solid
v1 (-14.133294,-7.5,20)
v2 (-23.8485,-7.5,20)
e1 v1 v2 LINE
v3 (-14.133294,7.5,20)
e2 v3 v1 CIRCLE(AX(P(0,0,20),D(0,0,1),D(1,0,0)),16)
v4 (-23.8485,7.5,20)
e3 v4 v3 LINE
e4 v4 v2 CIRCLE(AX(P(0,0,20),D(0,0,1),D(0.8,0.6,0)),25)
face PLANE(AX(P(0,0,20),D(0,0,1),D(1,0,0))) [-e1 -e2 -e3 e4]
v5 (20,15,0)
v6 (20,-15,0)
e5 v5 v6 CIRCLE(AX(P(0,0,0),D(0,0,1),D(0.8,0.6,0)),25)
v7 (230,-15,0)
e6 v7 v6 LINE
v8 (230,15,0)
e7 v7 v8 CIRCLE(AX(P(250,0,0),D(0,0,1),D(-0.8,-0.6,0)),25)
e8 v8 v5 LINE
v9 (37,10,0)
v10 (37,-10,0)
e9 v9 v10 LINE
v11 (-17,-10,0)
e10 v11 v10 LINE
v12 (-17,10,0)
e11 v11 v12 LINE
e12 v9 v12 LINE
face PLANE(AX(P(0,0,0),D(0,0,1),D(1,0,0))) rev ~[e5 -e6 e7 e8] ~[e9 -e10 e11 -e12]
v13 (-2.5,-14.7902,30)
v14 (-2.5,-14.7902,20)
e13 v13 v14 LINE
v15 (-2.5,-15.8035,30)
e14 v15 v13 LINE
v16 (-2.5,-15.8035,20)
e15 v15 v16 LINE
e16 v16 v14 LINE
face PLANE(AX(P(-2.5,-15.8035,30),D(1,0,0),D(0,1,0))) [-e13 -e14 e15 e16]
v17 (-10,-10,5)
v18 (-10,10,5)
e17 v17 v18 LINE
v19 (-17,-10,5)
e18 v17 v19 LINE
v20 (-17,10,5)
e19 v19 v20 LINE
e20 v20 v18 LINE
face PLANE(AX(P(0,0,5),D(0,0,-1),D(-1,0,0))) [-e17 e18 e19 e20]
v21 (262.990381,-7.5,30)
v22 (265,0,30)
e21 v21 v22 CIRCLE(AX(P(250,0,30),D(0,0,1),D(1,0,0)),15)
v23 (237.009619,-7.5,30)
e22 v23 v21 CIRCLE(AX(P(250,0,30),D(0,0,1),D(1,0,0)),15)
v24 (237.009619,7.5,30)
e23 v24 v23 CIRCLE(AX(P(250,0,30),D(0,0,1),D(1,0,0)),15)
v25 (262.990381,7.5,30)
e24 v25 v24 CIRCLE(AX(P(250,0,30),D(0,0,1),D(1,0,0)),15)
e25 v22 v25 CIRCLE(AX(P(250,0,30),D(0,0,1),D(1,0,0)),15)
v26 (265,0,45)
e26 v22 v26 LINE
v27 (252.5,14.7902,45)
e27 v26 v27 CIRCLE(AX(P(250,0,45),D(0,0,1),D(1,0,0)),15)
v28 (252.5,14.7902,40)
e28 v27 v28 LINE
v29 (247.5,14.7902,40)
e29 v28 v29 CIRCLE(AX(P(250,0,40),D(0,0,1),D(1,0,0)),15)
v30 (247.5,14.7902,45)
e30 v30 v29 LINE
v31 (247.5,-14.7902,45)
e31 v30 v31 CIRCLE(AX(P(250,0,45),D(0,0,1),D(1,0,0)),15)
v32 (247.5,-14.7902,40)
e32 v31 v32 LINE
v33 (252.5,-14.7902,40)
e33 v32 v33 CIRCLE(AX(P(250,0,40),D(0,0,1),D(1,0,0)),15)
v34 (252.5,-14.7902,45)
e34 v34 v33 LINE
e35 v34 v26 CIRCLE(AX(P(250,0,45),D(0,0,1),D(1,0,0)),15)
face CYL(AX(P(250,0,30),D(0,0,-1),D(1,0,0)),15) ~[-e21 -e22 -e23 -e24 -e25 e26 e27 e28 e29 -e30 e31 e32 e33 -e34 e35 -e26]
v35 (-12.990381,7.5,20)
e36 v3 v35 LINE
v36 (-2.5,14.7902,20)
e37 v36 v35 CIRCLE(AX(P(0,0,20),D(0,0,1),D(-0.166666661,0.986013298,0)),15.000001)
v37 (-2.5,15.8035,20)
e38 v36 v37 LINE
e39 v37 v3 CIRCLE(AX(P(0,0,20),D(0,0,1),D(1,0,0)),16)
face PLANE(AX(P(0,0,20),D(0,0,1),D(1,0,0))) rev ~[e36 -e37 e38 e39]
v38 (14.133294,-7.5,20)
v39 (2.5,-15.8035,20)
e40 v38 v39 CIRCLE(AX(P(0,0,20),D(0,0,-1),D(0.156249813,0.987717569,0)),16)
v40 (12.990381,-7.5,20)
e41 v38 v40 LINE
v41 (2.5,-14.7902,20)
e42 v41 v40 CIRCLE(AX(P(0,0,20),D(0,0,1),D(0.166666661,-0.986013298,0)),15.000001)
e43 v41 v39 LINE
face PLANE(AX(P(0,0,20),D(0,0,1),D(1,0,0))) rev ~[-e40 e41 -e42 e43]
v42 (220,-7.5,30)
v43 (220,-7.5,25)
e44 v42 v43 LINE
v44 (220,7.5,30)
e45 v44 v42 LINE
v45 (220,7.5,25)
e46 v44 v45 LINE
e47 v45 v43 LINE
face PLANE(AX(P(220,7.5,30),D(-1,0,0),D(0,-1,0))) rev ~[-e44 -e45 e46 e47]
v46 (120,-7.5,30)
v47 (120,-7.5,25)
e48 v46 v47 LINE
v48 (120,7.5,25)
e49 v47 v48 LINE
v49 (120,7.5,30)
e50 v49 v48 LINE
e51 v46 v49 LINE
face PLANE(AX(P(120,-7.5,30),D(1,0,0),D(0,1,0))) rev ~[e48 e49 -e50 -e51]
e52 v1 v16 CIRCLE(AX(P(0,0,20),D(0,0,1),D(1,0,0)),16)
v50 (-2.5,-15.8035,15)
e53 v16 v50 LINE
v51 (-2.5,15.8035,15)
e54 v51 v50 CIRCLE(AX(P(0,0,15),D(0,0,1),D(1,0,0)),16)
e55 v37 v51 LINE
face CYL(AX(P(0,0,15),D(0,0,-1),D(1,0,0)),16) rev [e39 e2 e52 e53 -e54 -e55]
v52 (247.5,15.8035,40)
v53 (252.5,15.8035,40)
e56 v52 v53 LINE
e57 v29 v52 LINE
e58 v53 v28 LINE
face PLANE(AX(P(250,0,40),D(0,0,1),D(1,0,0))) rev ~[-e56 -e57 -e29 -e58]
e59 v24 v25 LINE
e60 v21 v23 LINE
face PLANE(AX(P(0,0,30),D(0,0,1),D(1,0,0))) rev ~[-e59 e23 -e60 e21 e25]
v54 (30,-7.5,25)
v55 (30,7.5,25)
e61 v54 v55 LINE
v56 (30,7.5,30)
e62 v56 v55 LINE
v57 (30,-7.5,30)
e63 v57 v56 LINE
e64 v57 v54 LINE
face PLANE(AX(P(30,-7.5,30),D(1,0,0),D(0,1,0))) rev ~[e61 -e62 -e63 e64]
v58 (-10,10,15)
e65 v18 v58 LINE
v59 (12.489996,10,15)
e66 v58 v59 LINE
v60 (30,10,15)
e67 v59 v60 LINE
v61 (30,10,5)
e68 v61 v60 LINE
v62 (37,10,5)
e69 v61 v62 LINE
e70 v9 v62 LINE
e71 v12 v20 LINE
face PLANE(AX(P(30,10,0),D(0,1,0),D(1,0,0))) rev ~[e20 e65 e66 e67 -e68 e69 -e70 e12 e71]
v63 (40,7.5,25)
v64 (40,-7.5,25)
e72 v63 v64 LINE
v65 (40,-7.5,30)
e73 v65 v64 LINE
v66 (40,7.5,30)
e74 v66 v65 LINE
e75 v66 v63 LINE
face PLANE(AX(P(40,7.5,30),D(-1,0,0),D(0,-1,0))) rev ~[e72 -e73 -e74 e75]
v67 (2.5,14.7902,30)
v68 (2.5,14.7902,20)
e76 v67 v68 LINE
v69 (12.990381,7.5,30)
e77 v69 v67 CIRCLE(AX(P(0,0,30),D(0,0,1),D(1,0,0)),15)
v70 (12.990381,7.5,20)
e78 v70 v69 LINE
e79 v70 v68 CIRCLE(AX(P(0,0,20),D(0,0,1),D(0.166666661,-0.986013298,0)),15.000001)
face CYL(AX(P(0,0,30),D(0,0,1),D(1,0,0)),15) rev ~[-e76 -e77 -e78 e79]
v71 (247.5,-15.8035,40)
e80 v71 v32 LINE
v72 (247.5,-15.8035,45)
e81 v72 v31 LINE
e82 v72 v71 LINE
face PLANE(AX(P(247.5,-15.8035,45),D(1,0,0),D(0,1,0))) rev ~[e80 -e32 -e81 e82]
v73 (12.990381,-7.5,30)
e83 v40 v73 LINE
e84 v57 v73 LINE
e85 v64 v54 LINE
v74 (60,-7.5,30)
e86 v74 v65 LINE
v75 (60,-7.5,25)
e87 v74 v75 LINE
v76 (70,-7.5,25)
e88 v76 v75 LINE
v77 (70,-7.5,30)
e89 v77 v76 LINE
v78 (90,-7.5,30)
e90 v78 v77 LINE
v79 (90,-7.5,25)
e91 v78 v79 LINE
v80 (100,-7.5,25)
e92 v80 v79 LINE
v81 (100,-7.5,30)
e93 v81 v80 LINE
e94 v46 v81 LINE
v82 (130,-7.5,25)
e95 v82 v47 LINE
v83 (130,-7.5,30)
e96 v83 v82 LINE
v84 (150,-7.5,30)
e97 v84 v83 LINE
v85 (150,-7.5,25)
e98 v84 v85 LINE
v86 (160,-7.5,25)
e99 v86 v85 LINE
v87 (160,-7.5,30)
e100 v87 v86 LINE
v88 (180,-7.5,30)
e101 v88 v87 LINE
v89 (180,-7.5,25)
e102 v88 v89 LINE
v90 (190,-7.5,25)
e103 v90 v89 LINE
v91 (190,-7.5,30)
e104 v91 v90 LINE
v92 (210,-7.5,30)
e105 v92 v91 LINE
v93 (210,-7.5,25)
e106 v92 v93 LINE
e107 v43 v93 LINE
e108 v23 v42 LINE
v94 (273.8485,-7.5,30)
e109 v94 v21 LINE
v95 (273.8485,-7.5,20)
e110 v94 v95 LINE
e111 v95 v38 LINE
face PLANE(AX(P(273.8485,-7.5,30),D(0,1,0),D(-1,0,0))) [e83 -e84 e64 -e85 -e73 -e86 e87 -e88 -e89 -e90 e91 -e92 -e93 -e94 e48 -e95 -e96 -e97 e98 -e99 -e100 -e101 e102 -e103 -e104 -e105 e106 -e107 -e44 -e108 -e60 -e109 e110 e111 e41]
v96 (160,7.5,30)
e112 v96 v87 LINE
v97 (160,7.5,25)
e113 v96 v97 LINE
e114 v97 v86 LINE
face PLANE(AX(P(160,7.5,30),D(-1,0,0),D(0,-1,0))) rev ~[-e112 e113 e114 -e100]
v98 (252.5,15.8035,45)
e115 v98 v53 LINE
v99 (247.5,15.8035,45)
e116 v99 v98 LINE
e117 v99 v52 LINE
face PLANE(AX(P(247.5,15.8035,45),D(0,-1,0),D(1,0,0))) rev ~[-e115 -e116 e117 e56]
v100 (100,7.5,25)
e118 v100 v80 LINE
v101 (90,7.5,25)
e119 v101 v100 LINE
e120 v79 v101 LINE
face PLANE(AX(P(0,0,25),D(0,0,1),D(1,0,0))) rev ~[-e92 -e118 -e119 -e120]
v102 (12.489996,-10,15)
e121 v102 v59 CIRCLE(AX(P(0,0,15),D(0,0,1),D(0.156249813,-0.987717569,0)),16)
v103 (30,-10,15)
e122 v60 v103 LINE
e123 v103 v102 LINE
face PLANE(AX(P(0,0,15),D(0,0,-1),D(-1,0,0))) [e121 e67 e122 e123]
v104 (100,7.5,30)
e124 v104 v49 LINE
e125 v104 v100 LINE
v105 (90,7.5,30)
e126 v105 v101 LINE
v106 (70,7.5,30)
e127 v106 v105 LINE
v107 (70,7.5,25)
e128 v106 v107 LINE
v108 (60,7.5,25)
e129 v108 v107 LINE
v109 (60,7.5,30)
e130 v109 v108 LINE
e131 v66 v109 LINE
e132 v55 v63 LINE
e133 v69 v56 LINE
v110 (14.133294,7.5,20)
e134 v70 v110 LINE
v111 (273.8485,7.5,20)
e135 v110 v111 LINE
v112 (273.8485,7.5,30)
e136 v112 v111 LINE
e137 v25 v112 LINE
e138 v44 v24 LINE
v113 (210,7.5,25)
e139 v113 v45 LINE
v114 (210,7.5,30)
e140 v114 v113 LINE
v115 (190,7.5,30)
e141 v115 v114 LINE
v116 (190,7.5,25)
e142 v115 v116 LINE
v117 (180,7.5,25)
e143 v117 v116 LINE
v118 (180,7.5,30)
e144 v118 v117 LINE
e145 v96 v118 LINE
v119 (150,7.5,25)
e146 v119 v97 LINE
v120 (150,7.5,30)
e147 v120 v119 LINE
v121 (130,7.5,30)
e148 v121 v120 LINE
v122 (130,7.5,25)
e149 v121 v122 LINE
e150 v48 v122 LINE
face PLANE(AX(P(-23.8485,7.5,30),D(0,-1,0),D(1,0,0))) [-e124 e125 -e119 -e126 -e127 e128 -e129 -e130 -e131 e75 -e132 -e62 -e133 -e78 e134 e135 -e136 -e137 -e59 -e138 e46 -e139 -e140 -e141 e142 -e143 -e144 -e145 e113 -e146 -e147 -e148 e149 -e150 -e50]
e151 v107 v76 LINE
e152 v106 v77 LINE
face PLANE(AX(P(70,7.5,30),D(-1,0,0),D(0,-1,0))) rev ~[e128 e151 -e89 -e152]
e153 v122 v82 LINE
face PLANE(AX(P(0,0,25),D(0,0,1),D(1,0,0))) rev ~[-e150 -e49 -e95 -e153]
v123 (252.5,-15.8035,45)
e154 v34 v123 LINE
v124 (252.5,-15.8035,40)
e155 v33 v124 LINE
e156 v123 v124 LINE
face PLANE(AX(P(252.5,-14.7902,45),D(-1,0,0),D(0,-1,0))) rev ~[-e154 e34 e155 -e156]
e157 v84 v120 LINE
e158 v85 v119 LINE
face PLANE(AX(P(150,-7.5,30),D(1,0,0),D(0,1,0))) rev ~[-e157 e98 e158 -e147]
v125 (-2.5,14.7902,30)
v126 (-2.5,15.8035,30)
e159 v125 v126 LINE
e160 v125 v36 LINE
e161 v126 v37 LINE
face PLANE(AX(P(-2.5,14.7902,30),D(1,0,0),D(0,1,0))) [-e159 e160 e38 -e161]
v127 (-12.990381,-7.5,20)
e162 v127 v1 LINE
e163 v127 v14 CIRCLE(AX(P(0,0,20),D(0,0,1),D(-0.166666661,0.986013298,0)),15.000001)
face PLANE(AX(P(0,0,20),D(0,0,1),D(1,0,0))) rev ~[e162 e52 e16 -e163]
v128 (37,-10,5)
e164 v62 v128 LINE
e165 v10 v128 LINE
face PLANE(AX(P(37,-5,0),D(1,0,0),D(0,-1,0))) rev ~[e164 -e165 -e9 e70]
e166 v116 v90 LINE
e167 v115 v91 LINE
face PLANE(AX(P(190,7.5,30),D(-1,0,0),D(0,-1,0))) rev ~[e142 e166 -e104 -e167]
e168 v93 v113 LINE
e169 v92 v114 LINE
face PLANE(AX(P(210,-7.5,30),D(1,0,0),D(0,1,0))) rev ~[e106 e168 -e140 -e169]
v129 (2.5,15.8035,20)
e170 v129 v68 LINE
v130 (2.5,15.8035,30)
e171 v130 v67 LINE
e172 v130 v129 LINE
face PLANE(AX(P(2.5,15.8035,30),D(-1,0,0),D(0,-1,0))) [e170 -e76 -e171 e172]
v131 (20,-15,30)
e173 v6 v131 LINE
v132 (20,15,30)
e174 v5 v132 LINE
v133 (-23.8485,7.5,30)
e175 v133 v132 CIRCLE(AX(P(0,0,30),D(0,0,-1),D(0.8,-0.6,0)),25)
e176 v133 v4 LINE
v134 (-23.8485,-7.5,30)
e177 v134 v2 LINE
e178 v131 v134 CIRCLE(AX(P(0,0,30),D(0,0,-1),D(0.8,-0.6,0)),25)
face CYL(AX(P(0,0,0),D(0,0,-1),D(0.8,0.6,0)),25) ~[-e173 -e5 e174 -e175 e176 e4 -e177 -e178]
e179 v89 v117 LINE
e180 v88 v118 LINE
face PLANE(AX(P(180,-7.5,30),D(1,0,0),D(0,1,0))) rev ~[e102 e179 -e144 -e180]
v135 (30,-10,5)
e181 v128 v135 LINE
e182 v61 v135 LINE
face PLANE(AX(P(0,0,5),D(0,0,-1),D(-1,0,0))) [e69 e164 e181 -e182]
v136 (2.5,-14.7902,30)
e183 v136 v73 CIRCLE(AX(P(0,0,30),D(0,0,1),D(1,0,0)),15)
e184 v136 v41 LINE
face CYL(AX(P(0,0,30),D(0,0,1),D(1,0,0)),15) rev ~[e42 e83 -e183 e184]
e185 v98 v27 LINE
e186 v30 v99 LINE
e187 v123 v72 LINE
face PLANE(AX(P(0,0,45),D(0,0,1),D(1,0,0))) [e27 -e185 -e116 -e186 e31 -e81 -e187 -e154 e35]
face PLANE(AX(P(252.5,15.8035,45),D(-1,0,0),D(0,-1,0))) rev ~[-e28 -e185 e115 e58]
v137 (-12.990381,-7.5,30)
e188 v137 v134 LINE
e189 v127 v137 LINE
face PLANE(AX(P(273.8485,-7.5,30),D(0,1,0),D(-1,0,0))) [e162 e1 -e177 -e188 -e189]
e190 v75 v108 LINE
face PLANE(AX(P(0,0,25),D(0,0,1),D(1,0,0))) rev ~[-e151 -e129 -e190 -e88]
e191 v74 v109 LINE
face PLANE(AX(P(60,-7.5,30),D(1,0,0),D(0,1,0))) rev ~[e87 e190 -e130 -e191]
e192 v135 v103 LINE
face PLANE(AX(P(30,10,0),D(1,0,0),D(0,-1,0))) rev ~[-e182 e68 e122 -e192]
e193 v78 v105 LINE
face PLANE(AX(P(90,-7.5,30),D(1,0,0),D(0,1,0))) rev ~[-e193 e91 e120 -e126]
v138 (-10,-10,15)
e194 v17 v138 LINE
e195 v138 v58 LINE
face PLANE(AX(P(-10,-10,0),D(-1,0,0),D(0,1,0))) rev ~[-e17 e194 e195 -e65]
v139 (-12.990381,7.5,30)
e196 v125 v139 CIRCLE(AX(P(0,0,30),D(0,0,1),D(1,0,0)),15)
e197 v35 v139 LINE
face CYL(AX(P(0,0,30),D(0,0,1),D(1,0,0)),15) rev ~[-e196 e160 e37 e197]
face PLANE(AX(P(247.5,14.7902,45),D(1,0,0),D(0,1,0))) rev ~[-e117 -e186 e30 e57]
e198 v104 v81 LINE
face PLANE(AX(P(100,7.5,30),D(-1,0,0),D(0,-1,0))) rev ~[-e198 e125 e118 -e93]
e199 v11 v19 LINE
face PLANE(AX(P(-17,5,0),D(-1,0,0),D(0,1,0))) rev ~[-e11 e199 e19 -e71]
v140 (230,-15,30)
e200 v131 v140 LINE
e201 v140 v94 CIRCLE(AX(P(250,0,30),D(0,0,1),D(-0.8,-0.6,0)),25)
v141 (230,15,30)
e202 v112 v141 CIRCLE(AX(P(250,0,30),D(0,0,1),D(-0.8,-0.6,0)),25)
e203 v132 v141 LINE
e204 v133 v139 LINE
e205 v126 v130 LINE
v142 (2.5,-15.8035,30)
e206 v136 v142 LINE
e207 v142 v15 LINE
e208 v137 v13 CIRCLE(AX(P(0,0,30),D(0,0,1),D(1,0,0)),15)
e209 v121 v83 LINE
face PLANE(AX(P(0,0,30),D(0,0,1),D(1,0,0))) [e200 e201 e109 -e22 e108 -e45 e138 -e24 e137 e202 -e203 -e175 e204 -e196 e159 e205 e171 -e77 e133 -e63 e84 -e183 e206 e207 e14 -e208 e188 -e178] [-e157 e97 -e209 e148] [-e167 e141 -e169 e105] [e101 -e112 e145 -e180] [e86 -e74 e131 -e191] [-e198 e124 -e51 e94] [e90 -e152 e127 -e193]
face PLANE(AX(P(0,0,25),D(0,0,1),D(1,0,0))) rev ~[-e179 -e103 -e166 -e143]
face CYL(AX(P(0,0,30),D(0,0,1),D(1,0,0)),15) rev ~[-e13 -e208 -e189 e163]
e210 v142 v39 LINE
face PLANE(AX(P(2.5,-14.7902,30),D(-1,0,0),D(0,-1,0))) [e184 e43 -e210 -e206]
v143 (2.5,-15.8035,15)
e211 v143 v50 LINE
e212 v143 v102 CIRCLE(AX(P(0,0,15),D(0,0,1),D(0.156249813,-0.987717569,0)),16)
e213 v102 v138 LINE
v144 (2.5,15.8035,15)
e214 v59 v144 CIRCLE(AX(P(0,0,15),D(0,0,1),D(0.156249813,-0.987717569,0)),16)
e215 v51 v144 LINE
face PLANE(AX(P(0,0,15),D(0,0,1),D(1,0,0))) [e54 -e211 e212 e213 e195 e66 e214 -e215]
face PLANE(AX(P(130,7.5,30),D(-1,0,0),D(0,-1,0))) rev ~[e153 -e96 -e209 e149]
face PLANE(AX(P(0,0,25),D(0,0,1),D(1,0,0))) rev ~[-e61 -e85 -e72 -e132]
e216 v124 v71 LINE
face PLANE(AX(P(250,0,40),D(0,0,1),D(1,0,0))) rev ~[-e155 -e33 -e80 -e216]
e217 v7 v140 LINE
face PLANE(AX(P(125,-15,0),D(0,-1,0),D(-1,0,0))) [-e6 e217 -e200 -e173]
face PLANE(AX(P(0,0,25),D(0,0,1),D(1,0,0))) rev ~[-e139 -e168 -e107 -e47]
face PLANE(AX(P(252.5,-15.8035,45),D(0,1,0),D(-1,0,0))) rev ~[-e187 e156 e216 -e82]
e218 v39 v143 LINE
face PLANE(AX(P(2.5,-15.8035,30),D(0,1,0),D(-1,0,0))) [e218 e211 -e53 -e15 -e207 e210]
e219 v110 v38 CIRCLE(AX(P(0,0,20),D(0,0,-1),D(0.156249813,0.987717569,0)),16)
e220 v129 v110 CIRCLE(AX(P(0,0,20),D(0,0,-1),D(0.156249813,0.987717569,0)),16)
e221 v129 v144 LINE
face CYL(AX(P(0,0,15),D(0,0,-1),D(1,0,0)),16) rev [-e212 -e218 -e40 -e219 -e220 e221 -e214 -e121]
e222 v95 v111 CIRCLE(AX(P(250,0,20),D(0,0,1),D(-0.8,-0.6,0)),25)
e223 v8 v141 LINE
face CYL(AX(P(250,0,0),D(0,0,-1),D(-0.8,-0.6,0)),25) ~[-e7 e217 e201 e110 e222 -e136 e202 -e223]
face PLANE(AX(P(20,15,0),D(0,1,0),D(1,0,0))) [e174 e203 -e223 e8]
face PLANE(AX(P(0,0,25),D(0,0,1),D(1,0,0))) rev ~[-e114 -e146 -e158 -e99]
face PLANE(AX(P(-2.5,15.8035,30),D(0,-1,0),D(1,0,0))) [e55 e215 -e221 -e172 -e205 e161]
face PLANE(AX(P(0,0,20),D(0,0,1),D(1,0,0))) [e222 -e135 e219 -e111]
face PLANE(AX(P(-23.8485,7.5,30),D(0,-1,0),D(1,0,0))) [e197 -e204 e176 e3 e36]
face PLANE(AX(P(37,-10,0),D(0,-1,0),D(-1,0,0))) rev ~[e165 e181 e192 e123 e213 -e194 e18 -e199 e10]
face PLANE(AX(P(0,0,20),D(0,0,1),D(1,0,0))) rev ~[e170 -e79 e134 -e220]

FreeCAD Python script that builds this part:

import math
import FreeCAD as App
import Part
import Sketcher
from FreeCAD import Vector
Q = App.Units.Quantity

doc = App.newDocument("Part")
body = doc.addObject("PartDesign::Body", "Body")

# Sketch on XY plane
sketch1 = body.newObject("Sketcher::SketchObject", "Sketch")
sketch1.AttachmentSupport = (doc.getObject("XY_Plane"), [""])
sketch1.MapMode = "FlatFace"
sketch1.addGeometry([
    Part.ArcOfCircle(Part.Circle(Vector(0, 0, 0), Vector(0, 0, 1), 25), math.radians(37), math.radians(323)),
    Part.LineSegment(Vector(20, -15, 0), Vector(230, -15, 0)),
    Part.ArcOfCircle(Part.Circle(Vector(250, 0, 0), Vector(0, 0, 1), 25), math.radians(-143), math.radians(143)),
    Part.LineSegment(Vector(230, 15, 0), Vector(20, 15, 0)),
], False)
sketch1.addConstraint([
    Sketcher.Constraint("Coincident", 0, 2, 1, 1),
    Sketcher.Constraint("Coincident", 1, 2, 2, 1),
    Sketcher.Constraint("Coincident", 2, 2, 3, 1),
    Sketcher.Constraint("Coincident", 3, 2, 0, 1),
    Sketcher.Constraint("Horizontal", 1),
    Sketcher.Constraint("Horizontal", 3),
    Sketcher.Constraint("Coincident", 0, 3, -1, 1),
    Sketcher.Constraint("Equal", 0, 2),
    Sketcher.Constraint("Symmetric", 1, 2, 2, 2, -1),
    Sketcher.Constraint("Radius", 0, Q("25 mm")),
    Sketcher.Constraint("DistanceX", -1, 1, 2, 3, Q("250 mm")),
    Sketcher.Constraint("DistanceY", 1, 2, 2, 2, Q("30 mm")),
])
pad1 = body.newObject("PartDesign::Pad", "Pad")
pad1.Profile = sketch1
pad1.Length = 30

# Sketch on XY plane
sketch2 = body.newObject("Sketcher::SketchObject", "Sketch001")
sketch2.AttachmentSupport = (doc.getObject("XY_Plane"), [""])
sketch2.MapMode = "FlatFace"
sketch2.AttachmentOffset = App.Placement(Vector(0, 0, 30), App.Rotation())
sketch2.addGeometry([
    Part.LineSegment(Vector(274, 8, 0), Vector(-24, 8, 0)),
    Part.ArcOfCircle(Part.Circle(Vector(0, 0, 0), Vector(0, 0, 1), 25), math.radians(163), math.radians(197)),
    Part.LineSegment(Vector(-24, -8, 0), Vector(274, -8, 0)),
    Part.ArcOfCircle(Part.Circle(Vector(250, 0, 0), Vector(0, 0, 1), 25), math.radians(-17), math.radians(17)),
], False)
sketch2.addConstraint([
    Sketcher.Constraint("Coincident", 0, 2, 1, 1),
    Sketcher.Constraint("Coincident", 1, 2, 2, 1),
    Sketcher.Constraint("Coincident", 2, 2, 3, 1),
    Sketcher.Constraint("Coincident", 3, 2, 0, 1),
    Sketcher.Constraint("Horizontal", 0),
    Sketcher.Constraint("Horizontal", 2),
    Sketcher.Constraint("Coincident", 1, 3, -1, 1),
    Sketcher.Constraint("Equal", 1, 3),
    Sketcher.Constraint("Symmetric", 2, 2, 3, 2, -1),
    Sketcher.Constraint("Radius", 1, Q("25 mm")),
    Sketcher.Constraint("DistanceY", 1, 2, 0, 2, Q("15 mm")),
    Sketcher.Constraint("DistanceX", -1, 1, 3, 3, Q("250 mm")),
])
pocket1 = body.newObject("PartDesign::Pocket", "Pocket")
pocket1.Profile = sketch2
pocket1.Length = 10

# Sketch on XY plane
sketch3 = body.newObject("Sketcher::SketchObject", "Sketch002")
sketch3.AttachmentSupport = (doc.getObject("XY_Plane"), [""])
sketch3.MapMode = "FlatFace"
sketch3.AttachmentOffset = App.Placement(Vector(0, 0, 30), App.Rotation())
sketch3.addGeometry(Part.Circle(Vector(250, 0, 0), Vector(0, 0, 1), 15), False)
sketch3.addConstraint([
    Sketcher.Constraint("PointOnObject", 0, 3, -1),
    Sketcher.Constraint("Diameter", 0, Q("30 mm")),
    Sketcher.Constraint("DistanceX", -1, 1, 0, 3, Q("250 mm")),
])
pad2 = body.newObject("PartDesign::Pad", "Pad001")
pad2.Profile = sketch3
pad2.Length = 15

# Sketch on XY plane
sketch4 = body.newObject("Sketcher::SketchObject", "Sketch003")
sketch4.AttachmentSupport = (doc.getObject("XY_Plane"), [""])
sketch4.MapMode = "FlatFace"
sketch4.AttachmentOffset = App.Placement(Vector(0, 0, 30), App.Rotation())
sketch4.addGeometry(Part.Circle(Vector(0, 0, 0), Vector(0, 0, 1), 15), False)
sketch4.addConstraint([
    Sketcher.Constraint("Coincident", 0, 3, -1, 1),
    Sketcher.Constraint("Diameter", 0, Q("30 mm")),
])
pocket2 = body.newObject("PartDesign::Pocket", "Pocket001")
pocket2.Profile = sketch4
pocket2.Length = 15

# Sketch on XY plane
sketch5 = body.newObject("Sketcher::SketchObject", "Sketch004")
sketch5.AttachmentSupport = (doc.getObject("XY_Plane"), [""])
sketch5.MapMode = "FlatFace"
sketch5.AttachmentOffset = App.Placement(Vector(0, 0, 30), App.Rotation())
sketch5.addGeometry([
    Part.LineSegment(Vector(40, 8, 0), Vector(30, 8, 0)),  # 0
    Part.LineSegment(Vector(30, 8, 0), Vector(30, -8, 0)),  # 1
    Part.LineSegment(Vector(30, -8, 0), Vector(40, -8, 0)),  # 2
    Part.LineSegment(Vector(40, -8, 0), Vector(40, 8, 0)),  # 3
    Part.LineSegment(Vector(70, 8, 0), Vector(60, 8, 0)),  # 4
    Part.LineSegment(Vector(60, 8, 0), Vector(60, -8, 0)),  # 5
    Part.LineSegment(Vector(60, -8, 0), Vector(70, -8, 0)),  # 6
    Part.LineSegment(Vector(70, -8, 0), Vector(70, 8, 0)),  # 7
    Part.LineSegment(Vector(100, 8, 0), Vector(90, 8, 0)),  # 8
    Part.LineSegment(Vector(90, 8, 0), Vector(90, -8, 0)),  # 9
    Part.LineSegment(Vector(90, -8, 0), Vector(100, -8, 0)),  # 10
    Part.LineSegment(Vector(100, -8, 0), Vector(100, 8, 0)),  # 11
    Part.LineSegment(Vector(130, 8, 0), Vector(120, 8, 0)),  # 12
    Part.LineSegment(Vector(120, 8, 0), Vector(120, -8, 0)),  # 13
    Part.LineSegment(Vector(120, -8, 0), Vector(130, -8, 0)),  # 14
    Part.LineSegment(Vector(130, -8, 0), Vector(130, 8, 0)),  # 15
    Part.LineSegment(Vector(220, -8, 0), Vector(220, 8, 0)),  # 16
    Part.LineSegment(Vector(220, 8, 0), Vector(210, 8, 0)),  # 17
    Part.LineSegment(Vector(210, 8, 0), Vector(210, -8, 0)),  # 18
    Part.LineSegment(Vector(210, -8, 0), Vector(220, -8, 0)),  # 19
    Part.LineSegment(Vector(160, 8, 0), Vector(150, 8, 0)),  # 20
    Part.LineSegment(Vector(150, 8, 0), Vector(150, -8, 0)),  # 21
    Part.LineSegment(Vector(150, -8, 0), Vector(160, -8, 0)),  # 22
    Part.LineSegment(Vector(160, -8, 0), Vector(160, 8, 0)),  # 23
    Part.LineSegment(Vector(190, -8, 0), Vector(190, 8, 0)),  # 24
    Part.LineSegment(Vector(190, 8, 0), Vector(180, 8, 0)),  # 25
    Part.LineSegment(Vector(180, 8, 0), Vector(180, -8, 0)),  # 26
    Part.LineSegment(Vector(180, -8, 0), Vector(190, -8, 0)),  # 27
], False)
sketch5.addConstraint([
    Sketcher.Constraint("Coincident", 0, 2, 1, 1),
    Sketcher.Constraint("Coincident", 1, 2, 2, 1),
    Sketcher.Constraint("Coincident", 2, 2, 3, 1),
    Sketcher.Constraint("Coincident", 3, 2, 0, 1),
    Sketcher.Constraint("Coincident", 4, 2, 5, 1),
    Sketcher.Constraint("Coincident", 5, 2, 6, 1),
    Sketcher.Constraint("Coincident", 6, 2, 7, 1),
    Sketcher.Constraint("Coincident", 7, 2, 4, 1),
    Sketcher.Constraint("Coincident", 8, 2, 9, 1),
    Sketcher.Constraint("Coincident", 9, 2, 10, 1),
    Sketcher.Constraint("Coincident", 10, 2, 11, 1),
    Sketcher.Constraint("Coincident", 11, 2, 8, 1),
    Sketcher.Constraint("Coincident", 12, 2, 13, 1),
    Sketcher.Constraint("Coincident", 13, 2, 14, 1),
    Sketcher.Constraint("Coincident", 14, 2, 15, 1),
    Sketcher.Constraint("Coincident", 15, 2, 12, 1),
    Sketcher.Constraint("Coincident", 16, 2, 17, 1),
    Sketcher.Constraint("Coincident", 17, 2, 18, 1),
    Sketcher.Constraint("Coincident", 18, 2, 19, 1),
    Sketcher.Constraint("Coincident", 19, 2, 16, 1),
    Sketcher.Constraint("Coincident", 20, 2, 21, 1),
    Sketcher.Constraint("Coincident", 21, 2, 22, 1),
    Sketcher.Constraint("Coincident", 22, 2, 23, 1),
    Sketcher.Constraint("Coincident", 23, 2, 20, 1),
    Sketcher.Constraint("Coincident", 24, 2, 25, 1),
    Sketcher.Constraint("Coincident", 25, 2, 26, 1),
    Sketcher.Constraint("Coincident", 26, 2, 27, 1),
    Sketcher.Constraint("Coincident", 27, 2, 24, 1),
    Sketcher.Constraint("Horizontal", 0),
    Sketcher.Constraint("Vertical", 1),
    Sketcher.Constraint("Horizontal", 2),
    Sketcher.Constraint("Vertical", 3),
    Sketcher.Constraint("Horizontal", 4),
    Sketcher.Constraint("Vertical", 5),
    Sketcher.Constraint("Horizontal", 6),
    Sketcher.Constraint("Vertical", 7),
    Sketcher.Constraint("Horizontal", 8),
    Sketcher.Constraint("Vertical", 9),
    Sketcher.Constraint("Horizontal", 10),
    Sketcher.Constraint("Vertical", 11),
    Sketcher.Constraint("Horizontal", 12),
    Sketcher.Constraint("Vertical", 13),
    Sketcher.Constraint("Horizontal", 14),
    Sketcher.Constraint("Vertical", 15),
    Sketcher.Constraint("Vertical", 16),
    Sketcher.Constraint("Horizontal", 17),
    Sketcher.Constraint("Vertical", 18),
    Sketcher.Constraint("Horizontal", 19),
    Sketcher.Constraint("Horizontal", 20),
    Sketcher.Constraint("Vertical", 21),
    Sketcher.Constraint("Horizontal", 22),
    Sketcher.Constraint("Vertical", 23),
    Sketcher.Constraint("Vertical", 24),
    Sketcher.Constraint("Horizontal", 25),
    Sketcher.Constraint("Vertical", 26),
    Sketcher.Constraint("Horizontal", 27),
    Sketcher.Constraint("Horizontal", 3, 2, 4, 2),
    Sketcher.Constraint("Horizontal", 2, 2, 5, 2),
    Sketcher.Constraint("Horizontal", 7, 2, 8, 2),
    Sketcher.Constraint("Horizontal", 6, 2, 9, 2),
    Sketcher.Constraint("Horizontal", 11, 2, 12, 2),
    Sketcher.Constraint("Horizontal", 10, 2, 13, 2),
    Sketcher.Constraint("Horizontal", 15, 2, 16, 2),
    Sketcher.Constraint("Horizontal", 14, 2, 18, 2),
    Sketcher.Constraint("Horizontal", 17, 2, 20, 2),
    Sketcher.Constraint("Horizontal", 19, 2, 21, 2),
    Sketcher.Constraint("Horizontal", 23, 2, 24, 2),
    Sketcher.Constraint("Horizontal", 22, 2, 26, 2),
    Sketcher.Constraint("Equal", 2, 4),
    Sketcher.Constraint("Equal", 6, 8),
    Sketcher.Constraint("Equal", 10, 12),
    Sketcher.Constraint("Equal", 14, 17),
    Sketcher.Constraint("Equal", 19, 20),
    Sketcher.Constraint("Equal", 22, 25),
    Sketcher.Constraint("DistanceX", 0, 2, 0, 1, Q("10 mm")),
    Sketcher.Constraint("DistanceX", -1, 1, 0, 2, Q("30 mm")),
    Sketcher.Constraint("DistanceX", 0, 2, 4, 2, Q("30 mm")),
    Sketcher.Constraint("DistanceX", 4, 2, 8, 2, Q("30 mm")),
    Sketcher.Constraint("DistanceX", 8, 2, 12, 2, Q("30 mm")),
    Sketcher.Constraint("DistanceX", 12, 2, 20, 2, Q("30 mm")),
    Sketcher.Constraint("DistanceX", 24, 2, 16, 2, Q("30 mm")),
    Sketcher.Constraint("DistanceX", 23, 2, 24, 2, Q("30 mm")),
    Sketcher.Constraint("DistanceY", 1, 2, 1, 1, Q("15 mm")),
    Sketcher.Constraint("DistanceY", -1, 1, 0, 2, Q("7.5 mm")),
])
pad3 = body.newObject("PartDesign::Pad", "Pad002")
pad3.Profile = sketch5
pad3.Length = 5
pad3.Reversed = True

# Sketch on XY plane
sketch6 = body.newObject("Sketcher::SketchObject", "Sketch005")
sketch6.AttachmentSupport = (doc.getObject("XY_Plane"), [""])
sketch6.MapMode = "FlatFace"
sketch6.AttachmentOffset = App.Placement(Vector(0, 0, 45), App.Rotation())
sketch6.addGeometry([
    Part.ArcOfCircle(Part.Circle(Vector(250, 0, 0), Vector(0, 0, 1), 15), math.radians(80.41), math.radians(99.59)),  # 0
    Part.LineSegment(Vector(252.5, 14.8, 0), Vector(252.5, 15.8, 0)),  # 1
    Part.LineSegment(Vector(252.5, 15.8, 0), Vector(247.5, 15.8, 0)),  # 2
    Part.LineSegment(Vector(247.5, 15.8, 0), Vector(247.5, 14.8, 0)),  # 3
    Part.LineSegment(Vector(252.5, -15.8, 0), Vector(252.5, -14.8, 0)),  # 4
    Part.ArcOfCircle(Part.Circle(Vector(250, 0, 0), Vector(0, 0, 1), 15), math.radians(-99.59), math.radians(-80.41)),  # 5
    Part.LineSegment(Vector(247.5, -14.8, 0), Vector(247.5, -15.8, 0)),  # 6
    Part.LineSegment(Vector(247.5, -15.8, 0), Vector(252.5, -15.8, 0)),  # 7
], False)
sketch6.addConstraint([
    Sketcher.Constraint("Coincident", 0, 1, 1, 1),
    Sketcher.Constraint("Coincident", 1, 2, 2, 1),
    Sketcher.Constraint("Coincident", 2, 2, 3, 1),
    Sketcher.Constraint("Coincident", 3, 2, 0, 2),
    Sketcher.Constraint("Coincident", 4, 2, 5, 2),
    Sketcher.Constraint("Coincident", 5, 1, 6, 1),
    Sketcher.Constraint("Coincident", 6, 2, 7, 1),
    Sketcher.Constraint("Coincident", 7, 2, 4, 1),
    Sketcher.Constraint("Vertical", 1),
    Sketcher.Constraint("Horizontal", 2),
    Sketcher.Constraint("Vertical", 3),
    Sketcher.Constraint("Vertical", 4),
    Sketcher.Constraint("Vertical", 6),
    Sketcher.Constraint("Horizontal", 7),
    Sketcher.Constraint("Coincident", 5, 3, 0, 3),
    Sketcher.Constraint("Equal", 0, 5),
    Sketcher.Constraint("Symmetric", 0, 1, 4, 2, -1),
    Sketcher.Constraint("Symmetric", 2, 2, 6, 2, -1),
    Sketcher.Constraint("Horizontal", 0, 1, 3, 2),
    Sketcher.Constraint("DistanceX", 2, 2, 2, 1, Q("5 mm")),
    Sketcher.Constraint("Radius", 0, Q("15 mm")),
    Sketcher.Constraint("DistanceX", -1, 1, 0, 3, Q("250 mm")),
    Sketcher.Constraint("DistanceY", 1, 1, 1, 2, Q("1.0133 mm")),
])
pad4 = body.newObject("PartDesign::Pad", "Pad003")
pad4.Profile = sketch6
pad4.Length = 5
pad4.Reversed = True

# Sketch on XY plane
sketch7 = body.newObject("Sketcher::SketchObject", "Sketch006")
sketch7.AttachmentSupport = (doc.getObject("XY_Plane"), [""])
sketch7.MapMode = "FlatFace"
sketch7.AttachmentOffset = App.Placement(Vector(0, 0, 30), App.Rotation())
sketch7.addGeometry([
    Part.LineSegment(Vector(2.5, 15.8, 0), Vector(-2.5, 15.8, 0)),  # 0
    Part.LineSegment(Vector(-2.5, 15.8, 0), Vector(-2.5, 14.8, 0)),  # 1
    Part.ArcOfCircle(Part.Circle(Vector(0, 0, 0), Vector(0, 0, 1), 15), math.radians(80.41), math.radians(99.59)),  # 2
    Part.LineSegment(Vector(2.5, 14.8, 0), Vector(2.5, 15.8, 0)),  # 3
    Part.LineSegment(Vector(-2.5, -15.8, 0), Vector(2.5, -15.8, 0)),  # 4
    Part.LineSegment(Vector(2.5, -15.8, 0), Vector(2.5, -14.8, 0)),  # 5
    Part.ArcOfCircle(Part.Circle(Vector(0, 0, 0), Vector(0, 0, 1), 15), math.radians(-99.59), math.radians(-80.41)),  # 6
    Part.LineSegment(Vector(-2.5, -14.8, 0), Vector(-2.5, -15.8, 0)),  # 7
], False)
sketch7.addConstraint([
    Sketcher.Constraint("Coincident", 0, 2, 1, 1),
    Sketcher.Constraint("Coincident", 1, 2, 2, 2),
    Sketcher.Constraint("Coincident", 2, 1, 3, 1),
    Sketcher.Constraint("Coincident", 3, 2, 0, 1),
    Sketcher.Constraint("Coincident", 4, 2, 5, 1),
    Sketcher.Constraint("Coincident", 5, 2, 6, 2),
    Sketcher.Constraint("Coincident", 6, 1, 7, 1),
    Sketcher.Constraint("Coincident", 7, 2, 4, 1),
    Sketcher.Constraint("Horizontal", 0),
    Sketcher.Constraint("Vertical", 1),
    Sketcher.Constraint("Vertical", 3),
    Sketcher.Constraint("Horizontal", 4),
    Sketcher.Constraint("Vertical", 5),
    Sketcher.Constraint("Vertical", 7),
    Sketcher.Constraint("Coincident", 2, 3, -1, 1),
    Sketcher.Constraint("Coincident", 6, 3, -1, 1),
    Sketcher.Constraint("Equal", 2, 6),
    Sketcher.Constraint("Symmetric", 0, 2, 4, 2, -1, 1),
    Sketcher.Constraint("Horizontal", 1, 2, 2, 1),
    Sketcher.Constraint("Horizontal", 5, 2, 6, 1),
    Sketcher.Constraint("DistanceX", 0, 2, 0, 1, Q("5 mm")),
    Sketcher.Constraint("Radius", 2, Q("15 mm")),
    Sketcher.Constraint("DistanceY", 1, 2, 1, 1, Q("1.0133 mm")),
])
pocket3 = body.newObject("PartDesign::Pocket", "Pocket002")
pocket3.Profile = sketch7
pocket3.Length = 15

# Sketch on XY plane
sketch8 = body.newObject("Sketcher::SketchObject", "Sketch007")
sketch8.AttachmentSupport = (doc.getObject("XY_Plane"), [""])
sketch8.MapMode = "FlatFace"
sketch8.AttachmentOffset = App.Placement(Vector(0, 0, 15), App.Rotation())
sketch8.addGeometry([
    Part.ArcOfCircle(Part.Circle(Vector(0, 0, 0), Vector(0, 0, 1), 15), math.radians(-80), math.radians(80)),  # 0
    Part.LineSegment(Vector(2.5, -14.8, 0), Vector(2.5, -15.8, 0)),  # 1
    Part.ArcOfCircle(Part.Circle(Vector(0, 0, 0), Vector(0, 0, 1), 16), math.radians(-81), math.radians(81)),  # 2
    Part.LineSegment(Vector(2.5, 15.8, 0), Vector(2.5, 14.8, 0)),  # 3
    Part.LineSegment(Vector(-2.5, -15.8, 0), Vector(-2.5, -14.8, 0)),  # 4
    Part.ArcOfCircle(Part.Circle(Vector(0, 0, 0), Vector(0, 0, 1), 15), math.radians(100), math.radians(260)),  # 5
    Part.LineSegment(Vector(-2.5, 14.8, 0), Vector(-2.5, 15.8, 0)),  # 6
    Part.ArcOfCircle(Part.Circle(Vector(0, 0, 0), Vector(0, 0, 1), 16), math.radians(99), math.radians(261)),  # 7
], False)
sketch8.addConstraint([
    Sketcher.Constraint("Coincident", 0, 1, 1, 1),
    Sketcher.Constraint("Coincident", 1, 2, 2, 1),
    Sketcher.Constraint("Coincident", 2, 2, 3, 1),
    Sketcher.Constraint("Coincident", 3, 2, 0, 2),
    Sketcher.Constraint("Coincident", 4, 2, 5, 2),
    Sketcher.Constraint("Coincident", 5, 1, 6, 1),
    Sketcher.Constraint("Coincident", 6, 2, 7, 1),
    Sketcher.Constraint("Coincident", 7, 2, 4, 1),
    Sketcher.Constraint("Vertical", 1),
    Sketcher.Constraint("Vertical", 3),
    Sketcher.Constraint("Vertical", 4),
    Sketcher.Constraint("Vertical", 6),
    Sketcher.Constraint("Coincident", 0, 3, -1, 1),
    Sketcher.Constraint("Coincident", 2, 3, -1, 1),
    Sketcher.Constraint("Coincident", 5, 3, -1, 1),
    Sketcher.Constraint("Coincident", 7, 3, -1, 1),
    Sketcher.Constraint("Equal", 0, 5),
    Sketcher.Constraint("Equal", 2, 7),
    Sketcher.Constraint("Horizontal", 0, 1, 4, 2),
    Sketcher.Constraint("Horizontal", 3, 2, 5, 1),
    Sketcher.Constraint("Vertical", 1, 2, 2, 2),
    Sketcher.Constraint("Radius", 0, Q("15 mm")),
    Sketcher.Constraint("Radius", 2, Q("16 mm")),
    Sketcher.Constraint("DistanceX", 4, 2, 0, 1, Q("5 mm")),
])
pocket4 = body.newObject("PartDesign::Pocket", "Pocket003")
pocket4.Profile = sketch8
pocket4.Length = 5
pocket4.Reversed = True

# Sketch on XY plane
sketch9 = body.newObject("Sketcher::SketchObject", "Sketch008")
sketch9.AttachmentSupport = (doc.getObject("XY_Plane"), [""])
sketch9.MapMode = "FlatFace"
sketch9.addGeometry([
    Part.LineSegment(Vector(-10, -10, 0), Vector(-10, 10, 0)),
    Part.LineSegment(Vector(-10, 10, 0), Vector(30, 10, 0)),
    Part.LineSegment(Vector(30, 10, 0), Vector(30, -10, 0)),
    Part.LineSegment(Vector(30, -10, 0), Vector(-10, -10, 0)),
], False)
sketch9.addConstraint([
    Sketcher.Constraint("Coincident", 0, 2, 1, 1),
    Sketcher.Constraint("Coincident", 1, 2, 2, 1),
    Sketcher.Constraint("Coincident", 2, 2, 3, 1),
    Sketcher.Constraint("Coincident", 3, 2, 0, 1),
    Sketcher.Constraint("Vertical", 0),
    Sketcher.Constraint("Horizontal", 1),
    Sketcher.Constraint("Vertical", 2),
    Sketcher.Constraint("Horizontal", 3),
    Sketcher.Constraint("DistanceX", 1, 1, 1, 2, Q("40 mm")),
    Sketcher.Constraint("DistanceY", 0, 1, 0, 2, Q("20 mm")),
    Sketcher.Constraint("DistanceX", 0, 2, -1, 1, Q("10 mm")),
    Sketcher.Constraint("DistanceY", -1, 1, 0, 2, Q("10 mm")),
])
pocket5 = body.newObject("PartDesign::Pocket", "Pocket004")
pocket5.Profile = sketch9
pocket5.Length = 15
pocket5.Reversed = True

# Sketch on XY plane
sketch10 = body.newObject("Sketcher::SketchObject", "Sketch009")
sketch10.AttachmentSupport = (doc.getObject("XY_Plane"), [""])
sketch10.MapMode = "FlatFace"
sketch10.addGeometry([
    Part.LineSegment(Vector(-17, 10, 0), Vector(-10, 10, 0)),  # 0
    Part.LineSegment(Vector(-10, 10, 0), Vector(-10, -10, 0)),  # 1
    Part.LineSegment(Vector(-10, -10, 0), Vector(-17, -10, 0)),  # 2
    Part.LineSegment(Vector(-17, -10, 0), Vector(-17, 10, 0)),  # 3
    Part.LineSegment(Vector(30, -10, 0), Vector(30, 10, 0)),  # 4
    Part.LineSegment(Vector(30, 10, 0), Vector(37, 10, 0)),  # 5
    Part.LineSegment(Vector(37, 10, 0), Vector(37, -10, 0)),  # 6
    Part.LineSegment(Vector(37, -10, 0), Vector(30, -10, 0)),  # 7
], False)
sketch10.addConstraint([
    Sketcher.Constraint("Coincident", 0, 2, 1, 1),
    Sketcher.Constraint("Coincident", 1, 2, 2, 1),
    Sketcher.Constraint("Coincident", 2, 2, 3, 1),
    Sketcher.Constraint("Coincident", 3, 2, 0, 1),
    Sketcher.Constraint("Coincident", 4, 2, 5, 1),
    Sketcher.Constraint("Coincident", 5, 2, 6, 1),
    Sketcher.Constraint("Coincident", 6, 2, 7, 1),
    Sketcher.Constraint("Coincident", 7, 2, 4, 1),
    Sketcher.Constraint("Horizontal", 0),
    Sketcher.Constraint("Vertical", 1),
    Sketcher.Constraint("Horizontal", 2),
    Sketcher.Constraint("Vertical", 3),
    Sketcher.Constraint("Vertical", 4),
    Sketcher.Constraint("Horizontal", 5),
    Sketcher.Constraint("Vertical", 6),
    Sketcher.Constraint("Horizontal", 7),
    Sketcher.Constraint("Horizontal", 3, 2, 4, 2),
    Sketcher.Constraint("Horizontal", 2, 2, 6, 2),
    Sketcher.Constraint("Equal", 2, 5),
    Sketcher.Constraint("DistanceY", 1, 2, 1, 1, Q("20 mm")),
    Sketcher.Constraint("DistanceX", 0, 2, 4, 2, Q("40 mm")),
    Sketcher.Constraint("DistanceX", 3, 2, 5, 2, Q("54 mm")),
    Sketcher.Constraint("DistanceX", 0, 2, -1, 1, Q("10 mm")),
    Sketcher.Constraint("DistanceY", -1, 1, 0, 2, Q("10 mm")),
])
pocket6 = body.newObject("PartDesign::Pocket", "Pocket005")
pocket6.Profile = sketch10
pocket6.Length = 5
pocket6.Reversed = True

doc.recompute()
